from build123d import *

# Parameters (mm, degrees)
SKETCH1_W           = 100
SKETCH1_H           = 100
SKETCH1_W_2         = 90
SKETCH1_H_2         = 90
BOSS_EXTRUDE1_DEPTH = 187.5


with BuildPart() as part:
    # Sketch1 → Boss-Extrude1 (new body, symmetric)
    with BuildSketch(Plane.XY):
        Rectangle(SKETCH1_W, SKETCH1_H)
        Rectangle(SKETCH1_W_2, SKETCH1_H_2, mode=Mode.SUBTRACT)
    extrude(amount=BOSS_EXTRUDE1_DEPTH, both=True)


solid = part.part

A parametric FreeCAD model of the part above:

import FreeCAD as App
import Part
import Sketcher
from FreeCAD import Vector

doc = App.newDocument("Part")
body = doc.addObject("PartDesign::Body", "Body")

# Sketch on XY plane
sketch1 = body.newObject("Sketcher::SketchObject", "Sketch")
sketch1.AttachmentSupport = (doc.getObject("XY_Plane"), [""])
sketch1.MapMode = "FlatFace"
sketch1.addGeometry([
    Part.LineSegment(Vector(-50, 50, 0), Vector(-50, -50, 0)),  # 0
    Part.LineSegment(Vector(-50, -50, 0), Vector(50, -50, 0)),  # 1
    Part.LineSegment(Vector(50, -50, 0), Vector(50, 50, 0)),  # 2
    Part.LineSegment(Vector(50, 50, 0), Vector(-50, 50, 0)),  # 3
    Part.LineSegment(Vector(45, -45, 0), Vector(-45, -45, 0)),  # 4
    Part.LineSegment(Vector(-45, -45, 0), Vector(-45, 45, 0)),  # 5
    Part.LineSegment(Vector(-45, 45, 0), Vector(45, 45, 0)),  # 6
    Part.LineSegment(Vector(45, 45, 0), Vector(45, -45, 0)),  # 7
], False)
sketch1.addConstraint([
    Sketcher.Constraint("Coincident", 0, 2, 1, 1),
    Sketcher.Constraint("Coincident", 1, 2, 2, 1),
    Sketcher.Constraint("Coincident", 2, 2, 3, 1),
    Sketcher.Constraint("Coincident", 3, 2, 0, 1),
    Sketcher.Constraint("Coincident", 4, 2, 5, 1),
    Sketcher.Constraint("Coincident", 5, 2, 6, 1),
    Sketcher.Constraint("Coincident", 6, 2, 7, 1),
    Sketcher.Constraint("Coincident", 7, 2, 4, 1),
    Sketcher.Constraint("Vertical", 0),
    Sketcher.Constraint("Horizontal", 1),
    Sketcher.Constraint("Vertical", 2),
    Sketcher.Constraint("Horizontal", 3),
    Sketcher.Constraint("Horizontal", 4),
    Sketcher.Constraint("Vertical", 5),
    Sketcher.Constraint("Horizontal", 6),
    Sketcher.Constraint("Vertical", 7),
    Sketcher.Constraint("Symmetric", 0, 2, 2, 2, -1, 1),
    Sketcher.Constraint("Symmetric", 4, 2, 6, 2, -1, 1),
    Sketcher.Constraint("Equal", 3, 0),
    Sketcher.Constraint("Equal", 6, 5),
    Sketcher.Constraint("DistanceX", 1, 1, 1, 2, 100.0),
    Sketcher.Constraint("DistanceX", 4, 2, 4, 1, 90.0),
])
pad1 = body.newObject("PartDesign::Pad", "Pad")
pad1.Profile = sketch1
pad1.Length = 375
pad1.Midplane = True

doc.recompute()
